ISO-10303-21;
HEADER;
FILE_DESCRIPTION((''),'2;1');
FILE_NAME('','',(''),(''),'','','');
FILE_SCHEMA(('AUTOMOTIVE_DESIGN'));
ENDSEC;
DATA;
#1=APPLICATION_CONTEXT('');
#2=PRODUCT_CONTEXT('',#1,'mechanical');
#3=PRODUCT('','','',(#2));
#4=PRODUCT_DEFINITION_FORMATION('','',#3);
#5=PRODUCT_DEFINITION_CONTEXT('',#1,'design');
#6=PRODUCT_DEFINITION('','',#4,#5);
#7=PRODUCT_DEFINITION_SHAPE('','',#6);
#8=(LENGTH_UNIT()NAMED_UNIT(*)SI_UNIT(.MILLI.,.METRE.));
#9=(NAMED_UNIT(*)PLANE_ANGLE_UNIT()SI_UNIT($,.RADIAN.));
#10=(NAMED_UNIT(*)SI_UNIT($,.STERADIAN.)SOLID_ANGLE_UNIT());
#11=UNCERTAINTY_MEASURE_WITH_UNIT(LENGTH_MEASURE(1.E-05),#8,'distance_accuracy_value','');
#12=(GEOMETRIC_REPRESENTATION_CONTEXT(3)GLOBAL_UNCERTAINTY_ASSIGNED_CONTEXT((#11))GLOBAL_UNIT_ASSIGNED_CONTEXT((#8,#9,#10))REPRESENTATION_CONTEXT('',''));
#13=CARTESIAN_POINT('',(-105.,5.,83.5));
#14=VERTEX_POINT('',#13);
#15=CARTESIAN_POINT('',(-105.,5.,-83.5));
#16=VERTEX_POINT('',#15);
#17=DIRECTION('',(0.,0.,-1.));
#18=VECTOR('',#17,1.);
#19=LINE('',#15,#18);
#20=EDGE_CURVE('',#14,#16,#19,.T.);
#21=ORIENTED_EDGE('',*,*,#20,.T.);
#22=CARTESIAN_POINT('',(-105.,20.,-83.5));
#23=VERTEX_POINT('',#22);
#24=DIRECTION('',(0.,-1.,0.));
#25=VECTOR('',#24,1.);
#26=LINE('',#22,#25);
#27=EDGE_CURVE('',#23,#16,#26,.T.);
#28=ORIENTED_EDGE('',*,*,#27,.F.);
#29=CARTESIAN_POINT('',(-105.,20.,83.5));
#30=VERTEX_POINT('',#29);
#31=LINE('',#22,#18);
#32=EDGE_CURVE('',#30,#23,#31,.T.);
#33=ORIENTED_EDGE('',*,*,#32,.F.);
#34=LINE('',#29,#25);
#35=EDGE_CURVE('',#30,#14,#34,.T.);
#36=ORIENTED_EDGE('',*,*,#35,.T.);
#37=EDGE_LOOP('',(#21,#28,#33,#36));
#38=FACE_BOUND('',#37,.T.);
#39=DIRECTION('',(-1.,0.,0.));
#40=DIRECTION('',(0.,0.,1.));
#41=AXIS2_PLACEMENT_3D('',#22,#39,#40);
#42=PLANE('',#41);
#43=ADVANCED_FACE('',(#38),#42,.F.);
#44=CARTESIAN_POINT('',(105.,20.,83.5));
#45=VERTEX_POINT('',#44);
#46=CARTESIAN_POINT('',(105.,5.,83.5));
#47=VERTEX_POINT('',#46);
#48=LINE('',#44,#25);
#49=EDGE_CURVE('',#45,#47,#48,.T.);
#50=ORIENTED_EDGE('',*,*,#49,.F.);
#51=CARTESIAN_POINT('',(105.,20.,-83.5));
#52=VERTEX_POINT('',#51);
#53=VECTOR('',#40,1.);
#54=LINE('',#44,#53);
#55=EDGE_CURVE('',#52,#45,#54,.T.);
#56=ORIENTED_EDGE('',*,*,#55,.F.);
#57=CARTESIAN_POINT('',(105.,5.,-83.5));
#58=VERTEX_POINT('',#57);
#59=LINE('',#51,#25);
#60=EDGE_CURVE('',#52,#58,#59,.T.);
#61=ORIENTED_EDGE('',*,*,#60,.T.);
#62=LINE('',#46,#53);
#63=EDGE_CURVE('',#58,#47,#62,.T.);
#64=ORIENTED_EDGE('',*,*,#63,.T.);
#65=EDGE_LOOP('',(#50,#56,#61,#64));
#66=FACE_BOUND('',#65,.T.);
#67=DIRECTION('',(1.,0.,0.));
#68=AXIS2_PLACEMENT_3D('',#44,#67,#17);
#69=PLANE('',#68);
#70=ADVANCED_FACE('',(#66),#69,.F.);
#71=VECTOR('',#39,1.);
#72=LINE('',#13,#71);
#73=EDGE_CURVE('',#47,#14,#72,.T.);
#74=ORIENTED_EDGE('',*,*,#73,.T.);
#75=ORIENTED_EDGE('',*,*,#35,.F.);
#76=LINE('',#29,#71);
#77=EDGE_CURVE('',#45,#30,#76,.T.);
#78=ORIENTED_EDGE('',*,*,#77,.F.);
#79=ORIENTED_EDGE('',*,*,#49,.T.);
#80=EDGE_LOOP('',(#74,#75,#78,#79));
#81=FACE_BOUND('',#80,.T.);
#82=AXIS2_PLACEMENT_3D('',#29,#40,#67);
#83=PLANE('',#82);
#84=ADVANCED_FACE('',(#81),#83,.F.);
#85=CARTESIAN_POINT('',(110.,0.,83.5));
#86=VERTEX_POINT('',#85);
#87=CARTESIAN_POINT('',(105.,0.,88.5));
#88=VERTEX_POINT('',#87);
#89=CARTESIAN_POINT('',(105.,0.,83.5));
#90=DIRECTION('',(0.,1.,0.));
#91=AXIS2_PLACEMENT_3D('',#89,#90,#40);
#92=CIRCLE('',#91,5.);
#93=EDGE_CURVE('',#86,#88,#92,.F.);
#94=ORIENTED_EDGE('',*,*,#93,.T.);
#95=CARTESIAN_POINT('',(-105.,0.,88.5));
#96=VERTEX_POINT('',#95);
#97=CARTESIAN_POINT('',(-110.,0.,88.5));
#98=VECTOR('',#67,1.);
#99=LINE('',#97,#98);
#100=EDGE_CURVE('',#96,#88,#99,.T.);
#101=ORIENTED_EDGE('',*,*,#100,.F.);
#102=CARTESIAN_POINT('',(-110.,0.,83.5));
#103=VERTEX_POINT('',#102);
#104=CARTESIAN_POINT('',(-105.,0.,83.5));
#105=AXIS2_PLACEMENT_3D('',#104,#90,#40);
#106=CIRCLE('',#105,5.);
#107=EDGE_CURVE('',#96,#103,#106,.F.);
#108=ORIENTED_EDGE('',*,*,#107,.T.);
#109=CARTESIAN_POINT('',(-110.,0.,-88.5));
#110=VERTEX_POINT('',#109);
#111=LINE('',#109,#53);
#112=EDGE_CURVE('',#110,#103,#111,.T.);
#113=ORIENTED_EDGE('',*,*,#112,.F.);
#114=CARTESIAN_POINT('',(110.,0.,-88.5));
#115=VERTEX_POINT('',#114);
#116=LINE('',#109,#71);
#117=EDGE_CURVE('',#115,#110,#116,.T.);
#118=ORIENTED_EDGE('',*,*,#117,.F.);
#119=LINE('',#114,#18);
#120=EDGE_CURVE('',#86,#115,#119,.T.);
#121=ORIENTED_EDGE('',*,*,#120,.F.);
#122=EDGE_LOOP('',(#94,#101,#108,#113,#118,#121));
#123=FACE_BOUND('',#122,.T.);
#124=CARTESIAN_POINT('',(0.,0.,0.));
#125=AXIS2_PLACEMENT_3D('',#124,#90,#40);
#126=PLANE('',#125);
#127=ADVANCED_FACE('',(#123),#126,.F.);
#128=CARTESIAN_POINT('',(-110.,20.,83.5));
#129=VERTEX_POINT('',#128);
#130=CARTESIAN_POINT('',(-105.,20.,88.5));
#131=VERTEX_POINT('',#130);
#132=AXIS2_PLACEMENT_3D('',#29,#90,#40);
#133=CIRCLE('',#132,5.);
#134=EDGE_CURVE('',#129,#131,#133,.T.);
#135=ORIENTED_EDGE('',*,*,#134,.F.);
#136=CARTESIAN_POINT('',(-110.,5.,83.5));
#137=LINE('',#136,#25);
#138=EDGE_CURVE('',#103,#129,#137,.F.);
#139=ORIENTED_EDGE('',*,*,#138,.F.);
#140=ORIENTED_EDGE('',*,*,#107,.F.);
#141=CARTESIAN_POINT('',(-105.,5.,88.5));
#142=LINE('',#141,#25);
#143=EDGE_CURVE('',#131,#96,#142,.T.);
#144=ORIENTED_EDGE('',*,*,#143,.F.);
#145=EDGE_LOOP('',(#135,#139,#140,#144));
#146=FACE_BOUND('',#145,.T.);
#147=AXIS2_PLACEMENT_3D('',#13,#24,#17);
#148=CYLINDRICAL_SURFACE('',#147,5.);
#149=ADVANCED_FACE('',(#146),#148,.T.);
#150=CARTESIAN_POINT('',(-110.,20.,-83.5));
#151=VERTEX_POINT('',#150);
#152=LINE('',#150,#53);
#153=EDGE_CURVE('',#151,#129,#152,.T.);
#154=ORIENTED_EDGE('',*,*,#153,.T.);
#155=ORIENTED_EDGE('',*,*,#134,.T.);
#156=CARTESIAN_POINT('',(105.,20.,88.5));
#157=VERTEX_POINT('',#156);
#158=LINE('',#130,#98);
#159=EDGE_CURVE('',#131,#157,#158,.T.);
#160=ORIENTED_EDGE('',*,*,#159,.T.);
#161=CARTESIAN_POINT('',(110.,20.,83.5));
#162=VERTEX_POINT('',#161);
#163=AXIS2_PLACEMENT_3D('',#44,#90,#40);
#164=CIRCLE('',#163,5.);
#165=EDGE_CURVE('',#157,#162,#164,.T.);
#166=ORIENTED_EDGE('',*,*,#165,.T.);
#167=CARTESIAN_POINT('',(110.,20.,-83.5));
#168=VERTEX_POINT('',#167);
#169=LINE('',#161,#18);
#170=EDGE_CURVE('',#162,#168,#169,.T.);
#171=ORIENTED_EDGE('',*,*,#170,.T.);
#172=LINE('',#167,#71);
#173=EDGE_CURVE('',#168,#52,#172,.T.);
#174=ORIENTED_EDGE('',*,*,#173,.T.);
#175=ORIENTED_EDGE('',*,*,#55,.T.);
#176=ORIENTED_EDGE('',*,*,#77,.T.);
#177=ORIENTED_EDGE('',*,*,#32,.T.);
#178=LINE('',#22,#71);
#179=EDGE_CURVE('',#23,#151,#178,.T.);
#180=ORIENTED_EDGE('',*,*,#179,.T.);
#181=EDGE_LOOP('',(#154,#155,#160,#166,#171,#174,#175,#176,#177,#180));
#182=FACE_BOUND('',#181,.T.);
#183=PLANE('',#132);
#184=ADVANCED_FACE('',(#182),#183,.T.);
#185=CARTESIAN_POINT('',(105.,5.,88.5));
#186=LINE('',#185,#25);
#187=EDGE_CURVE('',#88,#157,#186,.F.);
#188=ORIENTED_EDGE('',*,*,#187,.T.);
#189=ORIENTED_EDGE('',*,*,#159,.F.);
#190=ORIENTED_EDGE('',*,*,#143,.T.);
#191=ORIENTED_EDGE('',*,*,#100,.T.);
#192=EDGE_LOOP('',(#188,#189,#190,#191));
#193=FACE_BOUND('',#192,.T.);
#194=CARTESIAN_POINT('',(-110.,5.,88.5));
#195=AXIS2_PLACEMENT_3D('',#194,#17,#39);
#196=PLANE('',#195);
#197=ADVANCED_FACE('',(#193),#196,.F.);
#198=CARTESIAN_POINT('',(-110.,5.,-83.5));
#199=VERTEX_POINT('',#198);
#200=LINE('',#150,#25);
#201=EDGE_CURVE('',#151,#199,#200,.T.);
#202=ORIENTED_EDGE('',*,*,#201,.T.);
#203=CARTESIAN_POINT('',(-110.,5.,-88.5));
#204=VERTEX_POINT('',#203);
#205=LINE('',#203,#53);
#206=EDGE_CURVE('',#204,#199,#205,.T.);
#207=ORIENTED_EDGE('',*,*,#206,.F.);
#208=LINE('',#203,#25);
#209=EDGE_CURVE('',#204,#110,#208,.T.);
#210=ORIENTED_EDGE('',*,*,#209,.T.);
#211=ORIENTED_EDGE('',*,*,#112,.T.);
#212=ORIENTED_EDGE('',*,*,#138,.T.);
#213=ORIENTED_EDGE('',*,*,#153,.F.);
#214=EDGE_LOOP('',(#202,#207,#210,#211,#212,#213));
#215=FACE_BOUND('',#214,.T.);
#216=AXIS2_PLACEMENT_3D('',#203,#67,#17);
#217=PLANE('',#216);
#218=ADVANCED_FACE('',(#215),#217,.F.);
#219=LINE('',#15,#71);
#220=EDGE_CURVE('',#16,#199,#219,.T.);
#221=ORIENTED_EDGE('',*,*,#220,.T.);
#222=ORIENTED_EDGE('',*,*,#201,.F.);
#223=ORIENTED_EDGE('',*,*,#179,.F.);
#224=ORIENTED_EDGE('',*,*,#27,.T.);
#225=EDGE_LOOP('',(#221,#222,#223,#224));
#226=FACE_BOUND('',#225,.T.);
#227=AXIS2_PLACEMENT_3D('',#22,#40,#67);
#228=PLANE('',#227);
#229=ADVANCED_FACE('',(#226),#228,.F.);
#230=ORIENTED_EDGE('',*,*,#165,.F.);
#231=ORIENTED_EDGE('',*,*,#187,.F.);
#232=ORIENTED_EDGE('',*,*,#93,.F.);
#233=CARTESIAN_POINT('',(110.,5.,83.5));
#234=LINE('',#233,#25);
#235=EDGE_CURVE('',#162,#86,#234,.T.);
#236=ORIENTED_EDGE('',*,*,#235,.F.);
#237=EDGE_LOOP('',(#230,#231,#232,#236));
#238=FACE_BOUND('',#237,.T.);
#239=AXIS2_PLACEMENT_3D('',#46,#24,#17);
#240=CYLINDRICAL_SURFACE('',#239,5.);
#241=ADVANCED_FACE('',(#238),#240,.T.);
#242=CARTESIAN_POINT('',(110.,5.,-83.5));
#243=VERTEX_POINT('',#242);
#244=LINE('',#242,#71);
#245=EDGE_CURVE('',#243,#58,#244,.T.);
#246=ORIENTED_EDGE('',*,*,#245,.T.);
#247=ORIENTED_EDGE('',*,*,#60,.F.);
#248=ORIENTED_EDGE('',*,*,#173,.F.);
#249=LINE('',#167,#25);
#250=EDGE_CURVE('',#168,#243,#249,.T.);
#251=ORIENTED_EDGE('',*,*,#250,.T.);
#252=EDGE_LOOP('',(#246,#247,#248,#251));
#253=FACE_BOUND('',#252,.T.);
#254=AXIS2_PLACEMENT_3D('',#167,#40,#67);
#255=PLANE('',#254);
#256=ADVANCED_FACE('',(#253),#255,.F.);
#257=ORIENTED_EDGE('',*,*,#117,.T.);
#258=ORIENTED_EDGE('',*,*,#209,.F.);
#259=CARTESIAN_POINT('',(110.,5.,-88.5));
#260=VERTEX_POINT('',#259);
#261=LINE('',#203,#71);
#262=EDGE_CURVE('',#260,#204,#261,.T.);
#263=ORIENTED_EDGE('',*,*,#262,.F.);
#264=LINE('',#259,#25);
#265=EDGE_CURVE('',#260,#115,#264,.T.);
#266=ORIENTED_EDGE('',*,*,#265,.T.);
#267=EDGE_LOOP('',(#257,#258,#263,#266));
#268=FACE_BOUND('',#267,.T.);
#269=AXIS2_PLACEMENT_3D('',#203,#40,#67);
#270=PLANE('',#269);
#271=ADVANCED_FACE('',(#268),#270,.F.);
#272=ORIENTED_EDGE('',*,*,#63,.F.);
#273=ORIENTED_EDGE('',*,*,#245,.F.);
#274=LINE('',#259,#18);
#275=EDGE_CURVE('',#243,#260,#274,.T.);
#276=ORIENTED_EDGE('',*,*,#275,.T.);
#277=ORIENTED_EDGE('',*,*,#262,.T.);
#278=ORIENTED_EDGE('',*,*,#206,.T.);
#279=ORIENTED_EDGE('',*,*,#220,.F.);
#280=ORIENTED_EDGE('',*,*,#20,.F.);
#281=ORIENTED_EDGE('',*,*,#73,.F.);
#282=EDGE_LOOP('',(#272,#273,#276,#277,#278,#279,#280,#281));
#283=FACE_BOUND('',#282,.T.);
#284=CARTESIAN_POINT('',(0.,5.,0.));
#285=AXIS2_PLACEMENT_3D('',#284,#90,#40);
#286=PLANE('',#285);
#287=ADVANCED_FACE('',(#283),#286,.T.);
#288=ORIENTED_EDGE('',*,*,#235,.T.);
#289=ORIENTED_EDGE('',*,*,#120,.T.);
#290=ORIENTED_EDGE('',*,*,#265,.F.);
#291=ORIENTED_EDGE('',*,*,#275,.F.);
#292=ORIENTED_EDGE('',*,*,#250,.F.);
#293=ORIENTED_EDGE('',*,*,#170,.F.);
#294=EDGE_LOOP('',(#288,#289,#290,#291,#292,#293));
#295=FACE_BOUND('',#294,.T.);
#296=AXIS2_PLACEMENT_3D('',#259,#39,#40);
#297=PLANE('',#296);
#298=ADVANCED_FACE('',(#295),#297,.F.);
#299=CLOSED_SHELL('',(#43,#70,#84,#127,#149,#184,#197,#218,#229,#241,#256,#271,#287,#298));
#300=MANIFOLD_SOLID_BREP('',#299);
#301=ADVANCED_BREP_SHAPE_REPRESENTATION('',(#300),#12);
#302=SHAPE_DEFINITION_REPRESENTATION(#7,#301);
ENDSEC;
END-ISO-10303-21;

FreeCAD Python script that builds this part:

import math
import FreeCAD as App
import Part
import Sketcher
from FreeCAD import Vector
Q = App.Units.Quantity


def edges_at(feature, points):
    """Names of the edges that pass closest to the given points."""
    edges = feature.Shape.Edges
    near = lambda p: min(range(len(edges)), key=lambda i: edges[i].distToShape(Part.Vertex(*p))[0])
    return sorted({f"Edge{near(p) + 1}" for p in points})


def add_polygon(sketch, points):
    """Adds a closed chain of lines whose ends are joined by coincident constraints."""
    first, n = sketch.GeometryCount, len(points)
    for a, b in zip(points, points[1:] + points[:1]):
        sketch.addGeometry(Part.LineSegment(App.Vector(*a, 0), App.Vector(*b, 0)), False)
    for i in range(n):
        sketch.addConstraint(Sketcher.Constraint("Coincident", first + i, 2, first + (i + 1) % n, 1))

doc = App.newDocument("Part")
body = doc.addObject("PartDesign::Body", "Body")

sketch1 = doc.addObject("Sketcher::SketchObject", "Sketch")
body.addObject(sketch1)
sketch1.AttachmentSupport = (doc.XZ_Plane, [""])
sketch1.MapMode = "FlatFace"
add_polygon(sketch1, [(-110, -88), (-110, 88), (110, 88), (110, -88)])
sketch1.addConstraint([
    Sketcher.Constraint("Vertical", 0),
    Sketcher.Constraint("Horizontal", 1),
    Sketcher.Constraint("Vertical", 2),
    Sketcher.Constraint("Horizontal", 3),
    Sketcher.Constraint("Symmetric", 0, 2, 2, 2, -1, 1),
    Sketcher.Constraint("DistanceX", 1, 1, 1, 2, Q("220 mm")),
    Sketcher.Constraint("DistanceY", 0, 1, 0, 2, Q("177 mm")),
])
pad1 = doc.addObject("PartDesign::Pad", "Pad")
body.addObject(pad1)
pad1.Profile = sketch1
pad1.Length = 5
pad1.Reversed = True
doc.recompute()

fillet = doc.addObject("PartDesign::Fillet", "Fillet")
body.addObject(fillet)
fillet.Base = (pad1, edges_at(pad1, [(110, 2.5, 88.5), (-110, 2.5, 88.5)]))
fillet.Radius = 5

sketch2 = doc.addObject("Sketcher::SketchObject", "Sketch001")
body.addObject(sketch2)
sketch2.AttachmentSupport = (doc.XZ_Plane, [""])
sketch2.MapMode = "FlatFace"
sketch2.AttachmentOffset = App.Placement(Vector(0, 0, -20), App.Rotation())
sketch2.addGeometry([
    Part.LineSegment(Vector(-105, 84, 0), Vector(-105, -84, 0)),
    Part.LineSegment(Vector(-105, -84, 0), Vector(-110, -84, 0)),
    Part.LineSegment(Vector(-110, -84, 0), Vector(-110, 84, 0)),
    Part.ArcOfCircle(Part.Circle(Vector(-105, 84, 0), Vector(0, 0, 1), 5), math.radians(90), math.radians(180)),
    Part.LineSegment(Vector(-105, 88, 0), Vector(105, 88, 0)),
    Part.ArcOfCircle(Part.Circle(Vector(105, 84, 0), Vector(0, 0, 1), 5), math.radians(0), math.radians(90)),
    Part.LineSegment(Vector(110, 84, 0), Vector(110, -84, 0)),
    Part.LineSegment(Vector(110, -84, 0), Vector(105, -84, 0)),
    Part.LineSegment(Vector(105, -84, 0), Vector(105, 84, 0)),
    Part.LineSegment(Vector(105, 84, 0), Vector(-105, 84, 0)),
], False)
sketch2.addConstraint([
    Sketcher.Constraint("Coincident", 0, 2, 1, 1),
    Sketcher.Constraint("Coincident", 1, 2, 2, 1),
    Sketcher.Constraint("Tangent", 2, 2, 3, 2),
    Sketcher.Constraint("Tangent", 3, 1, 4, 1),
    Sketcher.Constraint("Tangent", 4, 2, 5, 2),
    Sketcher.Constraint("Tangent", 5, 1, 6, 1),
    Sketcher.Constraint("Coincident", 6, 2, 7, 1),
    Sketcher.Constraint("Coincident", 7, 2, 8, 1),
    Sketcher.Constraint("Coincident", 8, 2, 9, 1),
    Sketcher.Constraint("Coincident", 9, 2, 0, 1),
    Sketcher.Constraint("Vertical", 0),
    Sketcher.Constraint("Horizontal", 1),
    Sketcher.Constraint("Vertical", 2),
    Sketcher.Constraint("Horizontal", 4),
    Sketcher.Constraint("Vertical", 6),
    Sketcher.Constraint("Horizontal", 7),
    Sketcher.Constraint("Vertical", 8),
    Sketcher.Constraint("Horizontal", 9),
    Sketcher.Constraint("Coincident", 8, 2, 5, 3),
    Sketcher.Constraint("Coincident", 9, 2, 3, 3),
    Sketcher.Constraint("Symmetric", 1, 2, 5, 1, -1, 1),
    Sketcher.Constraint("Horizontal", 1, 2, 6, 2),
    Sketcher.Constraint("Radius", 3, Q("5 mm")),
    Sketcher.Constraint("DistanceX", 4, 1, 4, 2, Q("210 mm")),
    Sketcher.Constraint("DistanceY", 0, 2, 0, 1, Q("167 mm")),
])
pad2 = doc.addObject("PartDesign::Pad", "Pad001")
body.addObject(pad2)
pad2.Profile = sketch2
pad2.Length = 15

doc.recompute()
